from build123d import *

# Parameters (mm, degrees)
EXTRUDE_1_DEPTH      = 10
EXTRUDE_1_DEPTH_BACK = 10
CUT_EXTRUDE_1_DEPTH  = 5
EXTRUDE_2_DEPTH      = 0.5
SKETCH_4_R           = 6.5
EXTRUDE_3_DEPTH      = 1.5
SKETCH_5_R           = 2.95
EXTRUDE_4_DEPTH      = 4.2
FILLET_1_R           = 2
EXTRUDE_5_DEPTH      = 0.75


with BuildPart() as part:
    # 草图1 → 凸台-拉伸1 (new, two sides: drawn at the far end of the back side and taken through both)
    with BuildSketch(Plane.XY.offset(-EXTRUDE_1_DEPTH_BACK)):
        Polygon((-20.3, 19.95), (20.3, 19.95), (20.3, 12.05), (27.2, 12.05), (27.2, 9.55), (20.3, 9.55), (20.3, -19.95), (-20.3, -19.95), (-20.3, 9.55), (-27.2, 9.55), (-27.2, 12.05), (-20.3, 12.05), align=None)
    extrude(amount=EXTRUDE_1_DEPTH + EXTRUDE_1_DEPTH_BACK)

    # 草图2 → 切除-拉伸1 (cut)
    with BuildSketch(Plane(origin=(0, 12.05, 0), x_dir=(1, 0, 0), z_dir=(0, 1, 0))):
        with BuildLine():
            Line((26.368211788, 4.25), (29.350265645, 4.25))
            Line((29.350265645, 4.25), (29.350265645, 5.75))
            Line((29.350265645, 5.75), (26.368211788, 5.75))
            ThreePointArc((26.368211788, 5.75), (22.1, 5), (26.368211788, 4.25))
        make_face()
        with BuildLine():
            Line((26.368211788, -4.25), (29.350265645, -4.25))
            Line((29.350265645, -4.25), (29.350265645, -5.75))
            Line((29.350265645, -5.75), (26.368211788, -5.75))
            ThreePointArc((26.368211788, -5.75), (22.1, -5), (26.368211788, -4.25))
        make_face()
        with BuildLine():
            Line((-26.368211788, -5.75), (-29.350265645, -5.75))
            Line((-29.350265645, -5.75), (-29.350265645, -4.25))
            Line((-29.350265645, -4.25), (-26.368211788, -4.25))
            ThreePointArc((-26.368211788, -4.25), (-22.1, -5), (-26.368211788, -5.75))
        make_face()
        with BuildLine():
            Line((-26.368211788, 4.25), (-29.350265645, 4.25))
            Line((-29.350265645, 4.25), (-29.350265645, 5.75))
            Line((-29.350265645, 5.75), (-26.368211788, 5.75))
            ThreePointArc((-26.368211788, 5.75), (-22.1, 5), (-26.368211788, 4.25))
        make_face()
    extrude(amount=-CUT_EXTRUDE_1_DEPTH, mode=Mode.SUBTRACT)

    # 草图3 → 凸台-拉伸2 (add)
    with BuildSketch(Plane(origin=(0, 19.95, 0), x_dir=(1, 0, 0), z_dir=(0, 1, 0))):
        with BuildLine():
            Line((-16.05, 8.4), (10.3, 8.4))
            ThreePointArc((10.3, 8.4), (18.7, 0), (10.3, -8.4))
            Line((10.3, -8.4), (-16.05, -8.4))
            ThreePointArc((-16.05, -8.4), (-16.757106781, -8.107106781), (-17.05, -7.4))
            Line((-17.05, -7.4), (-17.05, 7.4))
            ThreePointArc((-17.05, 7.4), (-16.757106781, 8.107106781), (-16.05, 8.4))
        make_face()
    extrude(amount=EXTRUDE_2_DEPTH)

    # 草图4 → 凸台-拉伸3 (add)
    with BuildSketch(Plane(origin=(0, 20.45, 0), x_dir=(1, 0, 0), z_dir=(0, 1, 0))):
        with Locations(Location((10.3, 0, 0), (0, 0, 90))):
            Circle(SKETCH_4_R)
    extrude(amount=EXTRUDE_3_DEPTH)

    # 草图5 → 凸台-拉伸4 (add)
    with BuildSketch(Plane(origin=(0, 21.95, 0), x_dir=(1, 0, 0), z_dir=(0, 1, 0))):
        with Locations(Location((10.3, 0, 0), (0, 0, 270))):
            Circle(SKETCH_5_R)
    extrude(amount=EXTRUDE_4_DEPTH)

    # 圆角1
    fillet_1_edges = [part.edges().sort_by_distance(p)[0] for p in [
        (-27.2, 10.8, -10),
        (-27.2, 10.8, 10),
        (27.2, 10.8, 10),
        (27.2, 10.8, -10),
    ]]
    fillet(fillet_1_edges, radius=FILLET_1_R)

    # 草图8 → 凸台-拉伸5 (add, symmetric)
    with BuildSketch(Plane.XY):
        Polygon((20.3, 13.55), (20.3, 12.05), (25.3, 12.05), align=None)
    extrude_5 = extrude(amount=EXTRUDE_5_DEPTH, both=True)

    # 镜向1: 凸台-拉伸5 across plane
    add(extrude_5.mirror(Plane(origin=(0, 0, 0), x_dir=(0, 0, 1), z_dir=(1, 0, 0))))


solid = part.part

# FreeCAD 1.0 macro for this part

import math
import FreeCAD as App
import Part
import Sketcher

V = App.Vector


def edges_at(feature, points):
    """Names of the edges that pass closest to the given points."""
    edges = feature.Shape.Edges
    near = lambda p: min(range(len(edges)), key=lambda i: edges[i].distToShape(Part.Vertex(*p))[0])
    return sorted({f"Edge{near(p) + 1}" for p in points})

doc = App.newDocument("Part")
params = doc.addObject("Spreadsheet::Sheet", "Params")
for row, (alias, value) in enumerate([
    ("sketch1_width", "40.6 mm"),
    ("sketch1_width2", "6.9 mm"),
    ("sketch1_height", "7.9 mm"),
    ("sketch1_height2", "2.5 mm"),
    ("sketch1_height3", "29.5 mm"),
    ("pad1_length", "10 mm"),
    ("pad1_length2", "10 mm"),
    ("sketch2_radius", "2.2 mm"),
    ("sketch2_height", "1.5 mm"),
    ("pocket1_length", "5 mm"),
    ("sketch3_radius", "1 mm"),
    ("sketch3_radius2", "8.4 mm"),
    ("sketch3_width", "26.35 mm"),
    ("pad2_length", "0.5 mm"),
    ("sketch4_diameter", "13 mm"),
    ("pad3_length", "1.5 mm"),
    ("sketch5_diameter", "5.9 mm"),
    ("pad4_length", "4.2 mm"),
    ("fillet_radius", "2 mm"),
    ("sketch6_width", "5 mm"),
    ("sketch6_height", "1.5 mm"),
    ("pad5_length", "1.5 mm"),
], start=1):
    params.set(f"A{row}", alias)
    params.set(f"B{row}", "=" + value)
    params.setAlias(f"B{row}", alias)

body = doc.addObject("PartDesign::Body", "Body")

# Sketch on XY plane
sketch1 = body.newObject("Sketcher::SketchObject", "Sketch")
sketch1.AttachmentSupport = (doc.getObject("XY_Plane"), [""])
sketch1.MapMode = "FlatFace"
sketch1.addGeometry(Part.LineSegment(V(20.3, 19.9, 0), V(-20.3, 19.9, 0)), False)
sketch1.addGeometry(Part.LineSegment(V(-20.3, 19.9, 0), V(-20.3, 12.1, 0)), False)
sketch1.addGeometry(Part.LineSegment(V(-20.3, 12.1, 0), V(-27.2, 12.1, 0)), False)
sketch1.addGeometry(Part.LineSegment(V(-27.2, 12.1, 0), V(-27.2, 9.6, 0)), False)
sketch1.addGeometry(Part.LineSegment(V(-27.2, 9.6, 0), V(-20.3, 9.6, 0)), False)
sketch1.addGeometry(Part.LineSegment(V(-20.3, 9.6, 0), V(-20.3, -19.9, 0)), False)
sketch1.addGeometry(Part.LineSegment(V(-20.3, -19.9, 0), V(20.3, -19.9, 0)), False)
sketch1.addGeometry(Part.LineSegment(V(20.3, -19.9, 0), V(20.3, 9.6, 0)), False)
sketch1.addGeometry(Part.LineSegment(V(20.3, 9.6, 0), V(27.2, 9.6, 0)), False)
sketch1.addGeometry(Part.LineSegment(V(27.2, 9.6, 0), V(27.2, 12.1, 0)), False)
sketch1.addGeometry(Part.LineSegment(V(27.2, 12.1, 0), V(20.3, 12.1, 0)), False)
sketch1.addGeometry(Part.LineSegment(V(20.3, 12.1, 0), V(20.3, 19.9, 0)), False)
sketch1.addConstraint(Sketcher.Constraint("Coincident", 0, 2, 1, 1))
sketch1.addConstraint(Sketcher.Constraint("Coincident", 1, 2, 2, 1))
sketch1.addConstraint(Sketcher.Constraint("Coincident", 2, 2, 3, 1))
sketch1.addConstraint(Sketcher.Constraint("Coincident", 3, 2, 4, 1))
sketch1.addConstraint(Sketcher.Constraint("Coincident", 4, 2, 5, 1))
sketch1.addConstraint(Sketcher.Constraint("Coincident", 5, 2, 6, 1))
sketch1.addConstraint(Sketcher.Constraint("Coincident", 6, 2, 7, 1))
sketch1.addConstraint(Sketcher.Constraint("Coincident", 7, 2, 8, 1))
sketch1.addConstraint(Sketcher.Constraint("Coincident", 8, 2, 9, 1))
sketch1.addConstraint(Sketcher.Constraint("Coincident", 9, 2, 10, 1))
sketch1.addConstraint(Sketcher.Constraint("Coincident", 10, 2, 11, 1))
sketch1.addConstraint(Sketcher.Constraint("Coincident", 11, 2, 0, 1))
sketch1.addConstraint(Sketcher.Constraint("Horizontal", 0))
sketch1.addConstraint(Sketcher.Constraint("Vertical", 1))
sketch1.addConstraint(Sketcher.Constraint("Horizontal", 2))
sketch1.addConstraint(Sketcher.Constraint("Vertical", 3))
sketch1.addConstraint(Sketcher.Constraint("Horizontal", 4))
sketch1.addConstraint(Sketcher.Constraint("Vertical", 5))
sketch1.addConstraint(Sketcher.Constraint("Horizontal", 6))
sketch1.addConstraint(Sketcher.Constraint("Vertical", 7))
sketch1.addConstraint(Sketcher.Constraint("Horizontal", 8))
sketch1.addConstraint(Sketcher.Constraint("Vertical", 9))
sketch1.addConstraint(Sketcher.Constraint("Horizontal", 10))
sketch1.addConstraint(Sketcher.Constraint("Vertical", 11))
sketch1.addConstraint(Sketcher.Constraint("Symmetric", 0, 2, 6, 2, -1, 1))
sketch1.addConstraint(Sketcher.Constraint("Symmetric", 4, 2, 7, 2, -2))
sketch1.addConstraint(Sketcher.Constraint("Symmetric", 2, 2, 9, 2, -2))
sketch1.addConstraint(Sketcher.Constraint("Vertical", 7, 2, 10, 2))
sketch1.addConstraint(Sketcher.Constraint("DistanceX", 0, 2, 0, 1, 40.6))
sketch1.addConstraint(Sketcher.Constraint("DistanceX", 2, 2, 2, 1, 6.9))
sketch1.addConstraint(Sketcher.Constraint("DistanceY", 1, 2, 1, 1, 7.9))
sketch1.addConstraint(Sketcher.Constraint("DistanceY", 3, 2, 3, 1, 2.5))
sketch1.addConstraint(Sketcher.Constraint("DistanceY", 5, 2, 5, 1, 29.5))
sketch1.setExpression("Constraints[28]", "Params.sketch1_width")
sketch1.setExpression("Constraints[29]", "Params.sketch1_width2")
sketch1.setExpression("Constraints[30]", "Params.sketch1_height")
sketch1.setExpression("Constraints[31]", "Params.sketch1_height2")
sketch1.setExpression("Constraints[32]", "Params.sketch1_height3")
pad1 = body.newObject("PartDesign::Pad", "Pad")
pad1.Profile = sketch1
pad1.Type = "TwoLengths"
pad1.setExpression("Length", "Params.pad1_length")
pad1.setExpression("Length2", "Params.pad1_length2")

# Sketch on XZ plane
sketch2 = body.newObject("Sketcher::SketchObject", "Sketch001")
sketch2.AttachmentSupport = (doc.getObject("XZ_Plane"), [""])
sketch2.MapMode = "FlatFace"
sketch2.AttachmentOffset = App.Placement(V(0, 0, -12.05), App.Rotation())
sketch2.addGeometry(Part.LineSegment(V(26.4, -4.2, 0), V(29.4, -4.2, 0)), False)
sketch2.addGeometry(Part.LineSegment(V(29.4, -4.2, 0), V(29.4, -5.8, 0)), False)
sketch2.addGeometry(Part.LineSegment(V(29.4, -5.8, 0), V(26.4, -5.8, 0)), False)
sketch2.addGeometry(Part.ArcOfCircle(Part.Circle(V(24.3, -5, 0), V(0, 0, 1), 2.2), math.radians(20), math.radians(340)), False)
sketch2.addGeometry(Part.LineSegment(V(29.4, 4.2, 0), V(26.4, 4.2, 0)), False)
sketch2.addGeometry(Part.ArcOfCircle(Part.Circle(V(24.3, 5, 0), V(0, 0, 1), 2.2), math.radians(20), math.radians(340)), False)
sketch2.addGeometry(Part.LineSegment(V(26.4, 5.8, 0), V(29.4, 5.8, 0)), False)
sketch2.addGeometry(Part.LineSegment(V(29.4, 5.8, 0), V(29.4, 4.2, 0)), False)
sketch2.addGeometry(Part.LineSegment(V(-29.4, 5.8, 0), V(-26.4, 5.8, 0)), False)
sketch2.addGeometry(Part.ArcOfCircle(Part.Circle(V(-24.3, 5, 0), V(0, 0, 1), 2.2), math.radians(-160), math.radians(160)), False)
sketch2.addGeometry(Part.LineSegment(V(-26.4, 4.2, 0), V(-29.4, 4.2, 0)), False)
sketch2.addGeometry(Part.LineSegment(V(-29.4, 4.2, 0), V(-29.4, 5.8, 0)), False)
sketch2.addGeometry(Part.LineSegment(V(-29.4, -4.2, 0), V(-26.4, -4.2, 0)), False)
sketch2.addGeometry(Part.ArcOfCircle(Part.Circle(V(-24.3, -5, 0), V(0, 0, 1), 2.2), math.radians(-160), math.radians(160)), False)
sketch2.addGeometry(Part.LineSegment(V(-26.4, -5.8, 0), V(-29.4, -5.8, 0)), False)
sketch2.addGeometry(Part.LineSegment(V(-29.4, -5.8, 0), V(-29.4, -4.2, 0)), False)
sketch2.addConstraint(Sketcher.Constraint("Coincident", 0, 2, 1, 1))
sketch2.addConstraint(Sketcher.Constraint("Coincident", 1, 2, 2, 1))
sketch2.addConstraint(Sketcher.Constraint("Coincident", 2, 2, 3, 2))
sketch2.addConstraint(Sketcher.Constraint("Coincident", 3, 1, 0, 1))
sketch2.addConstraint(Sketcher.Constraint("Coincident", 4, 2, 5, 2))
sketch2.addConstraint(Sketcher.Constraint("Coincident", 5, 1, 6, 1))
sketch2.addConstraint(Sketcher.Constraint("Coincident", 6, 2, 7, 1))
sketch2.addConstraint(Sketcher.Constraint("Coincident", 7, 2, 4, 1))
sketch2.addConstraint(Sketcher.Constraint("Coincident", 8, 2, 9, 2))
sketch2.addConstraint(Sketcher.Constraint("Coincident", 9, 1, 10, 1))
sketch2.addConstraint(Sketcher.Constraint("Coincident", 10, 2, 11, 1))
sketch2.addConstraint(Sketcher.Constraint("Coincident", 11, 2, 8, 1))
sketch2.addConstraint(Sketcher.Constraint("Coincident", 12, 2, 13, 2))
sketch2.addConstraint(Sketcher.Constraint("Coincident", 13, 1, 14, 1))
sketch2.addConstraint(Sketcher.Constraint("Coincident", 14, 2, 15, 1))
sketch2.addConstraint(Sketcher.Constraint("Coincident", 15, 2, 12, 1))
sketch2.addConstraint(Sketcher.Constraint("Horizontal", 0))
sketch2.addConstraint(Sketcher.Constraint("Vertical", 1))
sketch2.addConstraint(Sketcher.Constraint("Horizontal", 2))
sketch2.addConstraint(Sketcher.Constraint("Horizontal", 4))
sketch2.addConstraint(Sketcher.Constraint("Horizontal", 6))
sketch2.addConstraint(Sketcher.Constraint("Vertical", 7))
sketch2.addConstraint(Sketcher.Constraint("Horizontal", 8))
sketch2.addConstraint(Sketcher.Constraint("Horizontal", 10))
sketch2.addConstraint(Sketcher.Constraint("Vertical", 11))
sketch2.addConstraint(Sketcher.Constraint("Horizontal", 12))
sketch2.addConstraint(Sketcher.Constraint("Horizontal", 14))
sketch2.addConstraint(Sketcher.Constraint("Vertical", 15))
sketch2.addConstraint(Sketcher.Constraint("Equal", 3, 5))
sketch2.addConstraint(Sketcher.Constraint("Equal", 5, 9))
sketch2.addConstraint(Sketcher.Constraint("Equal", 9, 13))
sketch2.addConstraint(Sketcher.Constraint("Symmetric", 3, 3, 9, 3, -1, 1))
sketch2.addConstraint(Sketcher.Constraint("Symmetric", 5, 3, 13, 3, -1, 1))
sketch2.addConstraint(Sketcher.Constraint("Symmetric", 0, 2, 10, 2, -1, 1))
sketch2.addConstraint(Sketcher.Constraint("Symmetric", 6, 2, 14, 2, -1, 1))
sketch2.addConstraint(Sketcher.Constraint("Symmetric", 5, 3, 9, 3, -2))
sketch2.addConstraint(Sketcher.Constraint("Symmetric", 7, 2, 10, 2, -2))
sketch2.addConstraint(Sketcher.Constraint("Horizontal", 6, 2, 8, 2))
sketch2.addConstraint(Sketcher.Constraint("Horizontal", 3, 1, 12, 2))
sketch2.addConstraint(Sketcher.Constraint("Horizontal", 2, 2, 13, 1))
sketch2.addConstraint(Sketcher.Constraint("Vertical", 2, 2, 3, 1))
sketch2.addConstraint(Sketcher.Constraint("Radius", 3, 2.2))
sketch2.addConstraint(Sketcher.Constraint("DistanceY", 1, 2, 1, 1, 1.5))
sketch2.addConstraint(Sketcher.Constraint("DistanceY", 3, 3, -1, 1, 5.0))
sketch2.addConstraint(Sketcher.Constraint("DistanceX", -1, 1, 3, 3, 24.3))
sketch2.addConstraint(Sketcher.Constraint("DistanceX", 0, 1, 0, 2, 2.982054))
sketch2.setExpression("Constraints[41]", "Params.sketch2_radius")
sketch2.setExpression("Constraints[42]", "Params.sketch2_height")
pocket1 = body.newObject("PartDesign::Pocket", "Pocket")
pocket1.Profile = sketch2
pocket1.setExpression("Length", "Params.pocket1_length")
pocket1.Reversed = True

# Sketch on XZ plane
sketch3 = body.newObject("Sketcher::SketchObject", "Sketch002")
sketch3.AttachmentSupport = (doc.getObject("XZ_Plane"), [""])
sketch3.MapMode = "FlatFace"
sketch3.AttachmentOffset = App.Placement(V(0, 0, -19.95), App.Rotation())
sketch3.addGeometry(Part.LineSegment(V(10.3, -8.4, 0), V(-16.1, -8.4, 0)), False)
sketch3.addGeometry(Part.ArcOfCircle(Part.Circle(V(-16, -7.4, 0), V(0, 0, 1), 1), math.radians(-180), math.radians(-90)), False)
sketch3.addGeometry(Part.LineSegment(V(-17.1, -7.4, 0), V(-17.1, 7.4, 0)), False)
sketch3.addGeometry(Part.ArcOfCircle(Part.Circle(V(-16, 7.4, 0), V(0, 0, 1), 1), math.radians(90), math.radians(180)), False)
sketch3.addGeometry(Part.LineSegment(V(-16.1, 8.4, 0), V(10.3, 8.4, 0)), False)
sketch3.addGeometry(Part.ArcOfCircle(Part.Circle(V(10.3, 0, 0), V(0, 0, 1), 8.4), math.radians(-90), math.radians(90)), False)
sketch3.addConstraint(Sketcher.Constraint("Tangent", 0, 2, 1, 2))
sketch3.addConstraint(Sketcher.Constraint("Tangent", 1, 1, 2, 1))
sketch3.addConstraint(Sketcher.Constraint("Tangent", 2, 2, 3, 2))
sketch3.addConstraint(Sketcher.Constraint("Tangent", 3, 1, 4, 1))
sketch3.addConstraint(Sketcher.Constraint("Tangent", 4, 2, 5, 2))
sketch3.addConstraint(Sketcher.Constraint("Tangent", 5, 1, 0, 1))
sketch3.addConstraint(Sketcher.Constraint("Horizontal", 0))
sketch3.addConstraint(Sketcher.Constraint("Vertical", 2))
sketch3.addConstraint(Sketcher.Constraint("Horizontal", 4))
sketch3.addConstraint(Sketcher.Constraint("Equal", 1, 3))
sketch3.addConstraint(Sketcher.Constraint("PointOnObject", 5, 3, -1))
sketch3.addConstraint(Sketcher.Constraint("Radius", 1, 1.0))
sketch3.addConstraint(Sketcher.Constraint("Radius", 5, 8.4))
sketch3.addConstraint(Sketcher.Constraint("DistanceX", 0, 2, 0, 1, 26.35))
sketch3.addConstraint(Sketcher.Constraint("DistanceX", -1, 1, 5, 3, 10.3))
sketch3.setExpression("Constraints[11]", "Params.sketch3_radius")
sketch3.setExpression("Constraints[12]", "Params.sketch3_radius2")
sketch3.setExpression("Constraints[13]", "Params.sketch3_width")
pad2 = body.newObject("PartDesign::Pad", "Pad001")
pad2.Profile = sketch3
pad2.setExpression("Length", "Params.pad2_length")
pad2.Reversed = True

# Sketch on XZ plane
sketch4 = body.newObject("Sketcher::SketchObject", "Sketch003")
sketch4.AttachmentSupport = (doc.getObject("XZ_Plane"), [""])
sketch4.MapMode = "FlatFace"
sketch4.AttachmentOffset = App.Placement(V(0, 0, -20.45), App.Rotation())
sketch4.addGeometry(Part.Circle(V(10, 0, 0), V(0, 0, 1), 6), False)
sketch4.addConstraint(Sketcher.Constraint("PointOnObject", 0, 3, -1))
sketch4.addConstraint(Sketcher.Constraint("Diameter", 0, 13.0))
sketch4.addConstraint(Sketcher.Constraint("DistanceX", -1, 1, 0, 3, 10.3))
sketch4.setExpression("Constraints[1]", "Params.sketch4_diameter")
pad3 = body.newObject("PartDesign::Pad", "Pad002")
pad3.Profile = sketch4
pad3.setExpression("Length", "Params.pad3_length")
pad3.Reversed = True

# Sketch on XZ plane
sketch5 = body.newObject("Sketcher::SketchObject", "Sketch004")
sketch5.AttachmentSupport = (doc.getObject("XZ_Plane"), [""])
sketch5.MapMode = "FlatFace"
sketch5.AttachmentOffset = App.Placement(V(0, 0, -21.95), App.Rotation())
sketch5.addGeometry(Part.Circle(V(10.3, 0, 0), V(0, 0, 1), 3), False)
sketch5.addConstraint(Sketcher.Constraint("PointOnObject", 0, 3, -1))
sketch5.addConstraint(Sketcher.Constraint("Diameter", 0, 5.9))
sketch5.addConstraint(Sketcher.Constraint("DistanceX", -1, 1, 0, 3, 10.3))
sketch5.setExpression("Constraints[1]", "Params.sketch5_diameter")
pad4 = body.newObject("PartDesign::Pad", "Pad003")
pad4.Profile = sketch5
pad4.setExpression("Length", "Params.pad4_length")
pad4.Reversed = True
doc.recompute()

fillet = body.newObject("PartDesign::Fillet", "Fillet")
fillet.Base = (pad4, edges_at(pad4, [
    (-27.2, 10.8, -10),
    (-27.2, 10.8, 10),
    (27.2, 10.8, 10),
    (27.2, 10.8, -10),
]))
fillet.setExpression("Radius", "Params.fillet_radius")

# Sketch on XY plane
sketch6 = body.newObject("Sketcher::SketchObject", "Sketch005")
sketch6.AttachmentSupport = (doc.getObject("XY_Plane"), [""])
sketch6.MapMode = "FlatFace"
sketch6.addGeometry(Part.LineSegment(V(20.3, 13.6, 0), V(20.3, 12.1, 0)), False)
sketch6.addGeometry(Part.LineSegment(V(20.3, 12.1, 0), V(25.3, 12.1, 0)), False)
sketch6.addGeometry(Part.LineSegment(V(25.3, 12.1, 0), V(20.3, 13.6, 0)), False)
sketch6.addConstraint(Sketcher.Constraint("Coincident", 0, 2, 1, 1))
sketch6.addConstraint(Sketcher.Constraint("Coincident", 1, 2, 2, 1))
sketch6.addConstraint(Sketcher.Constraint("Coincident", 2, 2, 0, 1))
sketch6.addConstraint(Sketcher.Constraint("Vertical", 0))
sketch6.addConstraint(Sketcher.Constraint("Horizontal", 1))
sketch6.addConstraint(Sketcher.Constraint("DistanceX", 1, 1, 1, 2, 5.0))
sketch6.addConstraint(Sketcher.Constraint("DistanceY", 0, 2, 0, 1, 1.5))
sketch6.addConstraint(Sketcher.Constraint("DistanceX", -1, 1, 0, 2, 20.3))
sketch6.addConstraint(Sketcher.Constraint("DistanceY", -1, 1, 0, 2, 12.05))
sketch6.setExpression("Constraints[5]", "Params.sketch6_width")
sketch6.setExpression("Constraints[6]", "Params.sketch6_height")
pad5 = body.newObject("PartDesign::Pad", "Pad004")
pad5.Profile = sketch6
pad5.setExpression("Length", "Params.pad5_length")
pad5.Midplane = True
doc.recompute()

mirrored = body.newObject("PartDesign::Mirrored", "Mirrored")
mirrored.Originals = [pad5]
mirrored.MirrorPlane = (doc.getObject("YZ_Plane"), [""])
body.Tip = mirrored

doc.recompute()
